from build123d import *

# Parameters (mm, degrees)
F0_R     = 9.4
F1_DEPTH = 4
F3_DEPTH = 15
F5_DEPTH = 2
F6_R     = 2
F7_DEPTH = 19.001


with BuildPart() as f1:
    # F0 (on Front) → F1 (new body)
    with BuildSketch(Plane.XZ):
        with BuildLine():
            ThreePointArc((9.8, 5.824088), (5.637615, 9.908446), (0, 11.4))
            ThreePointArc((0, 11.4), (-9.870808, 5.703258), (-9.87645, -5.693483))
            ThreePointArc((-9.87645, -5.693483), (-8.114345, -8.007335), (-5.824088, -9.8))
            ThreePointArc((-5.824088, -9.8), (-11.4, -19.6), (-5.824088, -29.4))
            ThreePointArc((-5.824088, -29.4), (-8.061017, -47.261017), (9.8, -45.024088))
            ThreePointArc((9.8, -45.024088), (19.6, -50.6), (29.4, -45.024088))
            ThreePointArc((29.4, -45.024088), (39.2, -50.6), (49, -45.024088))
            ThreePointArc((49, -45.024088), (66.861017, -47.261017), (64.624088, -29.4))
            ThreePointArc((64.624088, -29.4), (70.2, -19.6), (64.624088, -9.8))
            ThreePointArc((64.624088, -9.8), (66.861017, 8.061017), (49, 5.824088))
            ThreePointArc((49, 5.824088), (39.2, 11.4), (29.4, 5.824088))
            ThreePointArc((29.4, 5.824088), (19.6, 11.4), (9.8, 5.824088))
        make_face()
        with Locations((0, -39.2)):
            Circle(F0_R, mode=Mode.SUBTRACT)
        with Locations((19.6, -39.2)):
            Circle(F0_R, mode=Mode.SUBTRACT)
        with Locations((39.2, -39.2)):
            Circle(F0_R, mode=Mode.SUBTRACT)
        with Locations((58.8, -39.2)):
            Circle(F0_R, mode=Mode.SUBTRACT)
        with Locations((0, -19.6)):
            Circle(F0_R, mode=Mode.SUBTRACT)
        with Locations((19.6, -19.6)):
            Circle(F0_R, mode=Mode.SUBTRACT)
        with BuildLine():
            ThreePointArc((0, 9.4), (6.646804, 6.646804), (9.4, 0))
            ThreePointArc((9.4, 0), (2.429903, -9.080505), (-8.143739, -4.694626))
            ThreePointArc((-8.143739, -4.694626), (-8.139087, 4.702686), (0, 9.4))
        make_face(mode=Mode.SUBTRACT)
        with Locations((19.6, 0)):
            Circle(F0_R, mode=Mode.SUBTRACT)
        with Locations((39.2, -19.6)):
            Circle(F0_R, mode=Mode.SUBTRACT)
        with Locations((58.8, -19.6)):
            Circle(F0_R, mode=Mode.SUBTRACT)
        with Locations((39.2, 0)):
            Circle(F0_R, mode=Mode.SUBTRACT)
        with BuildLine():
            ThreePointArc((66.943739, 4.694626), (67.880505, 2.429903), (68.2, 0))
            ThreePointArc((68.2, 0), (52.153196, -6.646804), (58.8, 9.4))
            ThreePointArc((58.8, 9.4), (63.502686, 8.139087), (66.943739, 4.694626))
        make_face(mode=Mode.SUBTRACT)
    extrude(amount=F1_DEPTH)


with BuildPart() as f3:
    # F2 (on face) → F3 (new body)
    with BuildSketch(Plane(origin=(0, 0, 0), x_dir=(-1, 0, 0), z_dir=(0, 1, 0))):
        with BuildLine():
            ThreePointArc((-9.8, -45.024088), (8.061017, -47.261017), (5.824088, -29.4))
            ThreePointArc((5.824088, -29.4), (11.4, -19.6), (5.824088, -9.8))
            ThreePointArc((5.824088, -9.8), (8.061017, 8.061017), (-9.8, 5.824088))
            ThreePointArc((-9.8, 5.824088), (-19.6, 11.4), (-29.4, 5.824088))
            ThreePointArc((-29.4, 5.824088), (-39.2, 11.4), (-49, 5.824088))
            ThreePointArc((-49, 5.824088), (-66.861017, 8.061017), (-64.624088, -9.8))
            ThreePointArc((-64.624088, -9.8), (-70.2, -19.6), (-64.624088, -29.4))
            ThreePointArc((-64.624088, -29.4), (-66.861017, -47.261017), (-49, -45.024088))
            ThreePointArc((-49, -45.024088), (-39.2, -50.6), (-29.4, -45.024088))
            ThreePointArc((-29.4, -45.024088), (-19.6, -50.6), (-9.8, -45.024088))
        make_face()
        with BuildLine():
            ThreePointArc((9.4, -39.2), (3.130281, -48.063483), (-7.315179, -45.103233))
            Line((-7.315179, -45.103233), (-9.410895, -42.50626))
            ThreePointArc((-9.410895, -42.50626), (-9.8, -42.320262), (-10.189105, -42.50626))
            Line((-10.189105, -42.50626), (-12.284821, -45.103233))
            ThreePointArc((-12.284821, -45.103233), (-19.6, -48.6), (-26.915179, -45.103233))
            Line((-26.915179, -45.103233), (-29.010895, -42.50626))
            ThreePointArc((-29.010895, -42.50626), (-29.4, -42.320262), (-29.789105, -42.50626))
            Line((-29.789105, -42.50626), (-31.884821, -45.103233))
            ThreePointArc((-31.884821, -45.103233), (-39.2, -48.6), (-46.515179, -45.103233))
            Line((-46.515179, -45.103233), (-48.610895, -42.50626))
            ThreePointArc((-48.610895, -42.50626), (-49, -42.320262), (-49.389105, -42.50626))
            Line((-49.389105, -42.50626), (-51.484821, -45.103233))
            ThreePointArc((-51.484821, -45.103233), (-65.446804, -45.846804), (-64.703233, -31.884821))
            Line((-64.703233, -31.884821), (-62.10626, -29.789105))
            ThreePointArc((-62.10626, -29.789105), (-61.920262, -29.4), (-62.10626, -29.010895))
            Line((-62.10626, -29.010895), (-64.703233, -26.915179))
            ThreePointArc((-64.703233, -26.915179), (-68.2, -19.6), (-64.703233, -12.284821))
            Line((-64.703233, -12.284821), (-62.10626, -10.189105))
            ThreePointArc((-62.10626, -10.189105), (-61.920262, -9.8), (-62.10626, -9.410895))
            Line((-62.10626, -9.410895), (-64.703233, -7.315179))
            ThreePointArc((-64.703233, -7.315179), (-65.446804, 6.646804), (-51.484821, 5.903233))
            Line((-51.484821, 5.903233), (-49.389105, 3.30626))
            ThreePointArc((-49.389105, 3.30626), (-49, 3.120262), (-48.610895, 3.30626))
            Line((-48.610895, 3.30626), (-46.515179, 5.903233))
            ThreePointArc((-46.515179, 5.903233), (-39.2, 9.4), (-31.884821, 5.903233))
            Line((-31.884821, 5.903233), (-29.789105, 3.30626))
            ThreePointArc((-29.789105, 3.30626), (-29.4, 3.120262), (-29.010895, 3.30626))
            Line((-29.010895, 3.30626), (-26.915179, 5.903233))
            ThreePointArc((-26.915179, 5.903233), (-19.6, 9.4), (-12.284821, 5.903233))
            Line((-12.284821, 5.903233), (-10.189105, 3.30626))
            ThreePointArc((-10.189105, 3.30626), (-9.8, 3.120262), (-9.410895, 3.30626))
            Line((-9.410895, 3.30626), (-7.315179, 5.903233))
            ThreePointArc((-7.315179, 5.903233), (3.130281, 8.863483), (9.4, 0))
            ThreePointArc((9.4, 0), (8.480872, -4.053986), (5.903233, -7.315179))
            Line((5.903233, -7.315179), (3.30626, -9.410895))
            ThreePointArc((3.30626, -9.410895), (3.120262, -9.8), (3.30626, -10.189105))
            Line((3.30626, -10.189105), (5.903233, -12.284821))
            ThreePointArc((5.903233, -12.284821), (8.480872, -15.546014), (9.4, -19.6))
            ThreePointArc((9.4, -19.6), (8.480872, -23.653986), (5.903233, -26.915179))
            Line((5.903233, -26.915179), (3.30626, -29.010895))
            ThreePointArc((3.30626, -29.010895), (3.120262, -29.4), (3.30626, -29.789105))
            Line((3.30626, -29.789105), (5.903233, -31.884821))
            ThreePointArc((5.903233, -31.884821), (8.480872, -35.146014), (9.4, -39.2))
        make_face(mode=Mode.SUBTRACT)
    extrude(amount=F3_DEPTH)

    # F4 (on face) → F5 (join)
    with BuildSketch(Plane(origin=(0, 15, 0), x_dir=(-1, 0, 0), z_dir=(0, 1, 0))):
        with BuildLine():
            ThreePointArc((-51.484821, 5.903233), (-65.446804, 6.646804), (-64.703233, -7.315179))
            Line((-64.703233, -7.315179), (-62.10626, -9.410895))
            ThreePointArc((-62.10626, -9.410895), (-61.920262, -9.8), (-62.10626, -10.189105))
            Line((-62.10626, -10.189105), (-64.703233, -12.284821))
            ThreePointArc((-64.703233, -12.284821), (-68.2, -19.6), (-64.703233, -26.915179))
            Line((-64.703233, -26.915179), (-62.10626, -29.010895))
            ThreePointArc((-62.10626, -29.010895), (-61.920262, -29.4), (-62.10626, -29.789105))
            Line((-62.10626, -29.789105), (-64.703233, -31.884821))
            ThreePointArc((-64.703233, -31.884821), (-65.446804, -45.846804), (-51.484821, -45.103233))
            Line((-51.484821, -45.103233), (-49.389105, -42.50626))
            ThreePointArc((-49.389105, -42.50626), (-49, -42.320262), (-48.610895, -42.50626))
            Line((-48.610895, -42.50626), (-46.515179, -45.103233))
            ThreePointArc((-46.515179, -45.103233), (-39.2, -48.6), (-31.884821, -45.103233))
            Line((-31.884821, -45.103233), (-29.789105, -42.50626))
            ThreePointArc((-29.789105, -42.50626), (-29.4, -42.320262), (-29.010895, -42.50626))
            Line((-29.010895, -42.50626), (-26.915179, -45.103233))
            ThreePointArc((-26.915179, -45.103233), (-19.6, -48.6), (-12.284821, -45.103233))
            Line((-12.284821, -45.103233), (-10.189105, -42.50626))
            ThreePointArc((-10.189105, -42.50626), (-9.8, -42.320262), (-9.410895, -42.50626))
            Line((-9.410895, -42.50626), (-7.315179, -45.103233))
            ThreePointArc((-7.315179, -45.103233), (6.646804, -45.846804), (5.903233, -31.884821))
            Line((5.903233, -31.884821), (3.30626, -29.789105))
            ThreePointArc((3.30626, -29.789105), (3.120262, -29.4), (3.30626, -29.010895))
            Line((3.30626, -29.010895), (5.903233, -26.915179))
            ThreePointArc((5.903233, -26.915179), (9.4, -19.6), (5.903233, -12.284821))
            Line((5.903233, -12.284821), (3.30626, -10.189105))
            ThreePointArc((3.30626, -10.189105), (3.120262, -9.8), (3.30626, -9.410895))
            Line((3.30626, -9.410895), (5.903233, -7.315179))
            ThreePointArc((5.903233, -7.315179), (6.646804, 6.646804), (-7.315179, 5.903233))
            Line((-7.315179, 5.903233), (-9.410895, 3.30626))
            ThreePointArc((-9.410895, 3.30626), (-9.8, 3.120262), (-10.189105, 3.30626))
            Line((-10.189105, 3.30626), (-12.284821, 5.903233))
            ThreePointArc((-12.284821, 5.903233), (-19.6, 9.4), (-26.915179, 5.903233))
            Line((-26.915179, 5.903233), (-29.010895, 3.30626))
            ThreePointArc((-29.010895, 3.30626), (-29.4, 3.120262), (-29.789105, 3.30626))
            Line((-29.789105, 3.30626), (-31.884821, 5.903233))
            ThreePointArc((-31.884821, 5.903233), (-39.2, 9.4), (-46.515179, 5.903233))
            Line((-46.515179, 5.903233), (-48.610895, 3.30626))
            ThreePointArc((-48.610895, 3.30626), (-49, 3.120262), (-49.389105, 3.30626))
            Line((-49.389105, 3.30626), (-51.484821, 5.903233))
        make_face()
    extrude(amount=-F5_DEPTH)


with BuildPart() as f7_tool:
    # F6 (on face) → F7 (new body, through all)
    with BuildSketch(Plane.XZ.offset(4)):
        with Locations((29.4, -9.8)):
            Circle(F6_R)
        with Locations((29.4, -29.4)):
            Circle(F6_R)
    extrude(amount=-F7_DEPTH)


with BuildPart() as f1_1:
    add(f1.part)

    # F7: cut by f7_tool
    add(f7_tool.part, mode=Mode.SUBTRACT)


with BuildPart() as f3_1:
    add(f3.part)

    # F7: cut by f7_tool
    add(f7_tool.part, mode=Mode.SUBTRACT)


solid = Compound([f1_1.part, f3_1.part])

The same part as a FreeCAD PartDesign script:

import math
import FreeCAD as App
import Part
import Sketcher

doc = App.newDocument("Part")
body = doc.addObject("PartDesign::Body", "Body")

# Sketch on XZ plane
sketch1 = body.newObject("Sketcher::SketchObject", "Sketch")
sketch1.AttachmentSupport = (doc.getObject("XZ_Plane"), [""])
sketch1.MapMode = "FlatFace"
sketch1.addGeometry([
    Part.ArcOfCircle(Part.Circle(App.Vector(0.000001, 0.000001, 0), App.Vector(0, 0, 1), 11.399999), math.radians(30.722788), math.radians(90.000004)),  # 0
    Part.ArcOfCircle(Part.Circle(App.Vector(0, 0, 0), App.Vector(0, 0, 1), 11.4), math.radians(90.000001), math.radians(209.962182)),  # 1
    Part.ArcOfCircle(Part.Circle(App.Vector(-0.000002, -0.000001, 0), App.Vector(0, 0, 1), 11.399998), math.radians(-150.037813), math.radians(-120.722784)),  # 2
    Part.ArcOfCircle(Part.Circle(App.Vector(0, -19.6, 0), App.Vector(0, 0, 1), 11.4), math.radians(120.722792), math.radians(239.277208)),  # 3
    Part.ArcOfCircle(Part.Circle(App.Vector(0, -39.2, 0), App.Vector(0, 0, 1), 11.4), math.radians(120.722793), math.radians(329.277207)),  # 4
    Part.ArcOfCircle(Part.Circle(App.Vector(19.6, -39.2, 0), App.Vector(0, 0, 1), 11.4), math.radians(-149.277208), math.radians(-30.722792)),  # 5
    Part.ArcOfCircle(Part.Circle(App.Vector(39.2, -39.2, 0), App.Vector(0, 0, 1), 11.4), math.radians(-149.277208), math.radians(-30.722792)),  # 6
    Part.ArcOfCircle(Part.Circle(App.Vector(58.8, -39.2, 0), App.Vector(0, 0, 1), 11.4), math.radians(-149.277207), math.radians(59.277207)),  # 7
    Part.ArcOfCircle(Part.Circle(App.Vector(58.8, -19.6, 0), App.Vector(0, 0, 1), 11.4), math.radians(-59.277208), math.radians(59.277208)),  # 8
    Part.ArcOfCircle(Part.Circle(App.Vector(58.8, 0, 0), App.Vector(0, 0, 1), 11.4), math.radians(-59.277207), math.radians(149.277207)),  # 9
    Part.ArcOfCircle(Part.Circle(App.Vector(39.2, 0, 0), App.Vector(0, 0, 1), 11.4), math.radians(30.722792), math.radians(149.277208)),  # 10
    Part.ArcOfCircle(Part.Circle(App.Vector(19.6, 0, 0), App.Vector(0, 0, 1), 11.4), math.radians(30.722792), math.radians(149.277208)),  # 11
    Part.Circle(App.Vector(0, -39.2, 0), App.Vector(0, 0, 1), 9.4),  # 12
    Part.Circle(App.Vector(19.6, -39.2, 0), App.Vector(0, 0, 1), 9.4),  # 13
    Part.Circle(App.Vector(0, -19.6, 0), App.Vector(0, 0, 1), 9.4),  # 14
    Part.Circle(App.Vector(19.6, -19.6, 0), App.Vector(0, 0, 1), 9.4),  # 15
    Part.Circle(App.Vector(39.2, -39.2, 0), App.Vector(0, 0, 1), 9.4),  # 16
    Part.Circle(App.Vector(58.8, -39.2, 0), App.Vector(0, 0, 1), 9.4),  # 17
    Part.Circle(App.Vector(39.2, -19.6, 0), App.Vector(0, 0, 1), 9.4),  # 18
    Part.Circle(App.Vector(58.8, -19.6, 0), App.Vector(0, 0, 1), 9.4),  # 19
    Part.ArcOfCircle(Part.Circle(App.Vector(0.000001, 0, 0), App.Vector(0, 0, 1), 9.4), math.radians(90.000004), math.radians(209.962181)),  # 20
    Part.ArcOfCircle(Part.Circle(App.Vector(0.000001, 0.000001, 0), App.Vector(0, 0, 1), 9.399999), math.radians(-0.000005), math.radians(90.000005)),  # 21
    Part.ArcOfCircle(Part.Circle(App.Vector(0, 0, 0), App.Vector(0, 0, 1), 9.4), math.radians(-150.037816), math.radians(0)),  # 22
    Part.Circle(App.Vector(19.6, 0, 0), App.Vector(0, 0, 1), 9.4),  # 23
    Part.Circle(App.Vector(39.2, 0, 0), App.Vector(0, 0, 1), 9.4),  # 24
    Part.ArcOfCircle(Part.Circle(App.Vector(58.799999, -0.000002, 0), App.Vector(0, 0, 1), 9.400002), math.radians(29.962191), math.radians(89.999992)),  # 25
    Part.ArcOfCircle(Part.Circle(App.Vector(58.800001, 0, 0), App.Vector(0, 0, 1), 9.399999), math.radians(0), math.radians(29.962187)),  # 26
    Part.ArcOfCircle(Part.Circle(App.Vector(58.8, 0, 0), App.Vector(0, 0, 1), 9.4), math.radians(89.999999), math.radians(360.000001)),  # 27
], False)
sketch1.addConstraint([
    Sketcher.Constraint("Tangent", 0, 2, 1, 1),
    Sketcher.Constraint("Tangent", 1, 2, 2, 1),
    Sketcher.Constraint("Coincident", 2, 2, 3, 1),
    Sketcher.Constraint("Coincident", 3, 2, 4, 1),
    Sketcher.Constraint("Coincident", 4, 2, 5, 1),
    Sketcher.Constraint("Coincident", 5, 2, 6, 1),
    Sketcher.Constraint("Coincident", 6, 2, 7, 1),
    Sketcher.Constraint("Coincident", 7, 2, 8, 1),
    Sketcher.Constraint("Coincident", 8, 2, 9, 1),
    Sketcher.Constraint("Coincident", 9, 2, 10, 1),
    Sketcher.Constraint("Coincident", 10, 2, 11, 1),
    Sketcher.Constraint("Coincident", 11, 2, 0, 1),
    Sketcher.Constraint("Tangent", 20, 1, 21, 2),
    Sketcher.Constraint("Tangent", 21, 1, 22, 2),
    Sketcher.Constraint("Tangent", 22, 1, 20, 2),
    Sketcher.Constraint("Tangent", 25, 1, 26, 2),
    Sketcher.Constraint("Tangent", 26, 1, 27, 2),
    Sketcher.Constraint("Tangent", 27, 1, 25, 2),
    Sketcher.Constraint("Coincident", 0, 3, -1, 1),
    Sketcher.Constraint("Coincident", 2, 3, -1, 1),
    Sketcher.Constraint("Coincident", 20, 3, -1, 1),
    Sketcher.Constraint("Coincident", 12, 3, 4, 3),
    Sketcher.Constraint("Coincident", 13, 3, 5, 3),
    Sketcher.Constraint("Coincident", 14, 3, 3, 3),
    Sketcher.Constraint("Coincident", 16, 3, 6, 3),
    Sketcher.Constraint("Coincident", 17, 3, 7, 3),
    Sketcher.Constraint("Coincident", 19, 3, 8, 3),
    Sketcher.Constraint("Coincident", 23, 3, 11, 3),
    Sketcher.Constraint("Coincident", 24, 3, 10, 3),
    Sketcher.Constraint("Coincident", 25, 3, 9, 3),
    Sketcher.Constraint("Equal", 2, 3),
    Sketcher.Constraint("Equal", 3, 4),
    Sketcher.Constraint("Equal", 4, 5),
    Sketcher.Constraint("Equal", 5, 6),
    Sketcher.Constraint("Equal", 6, 7),
    Sketcher.Constraint("Equal", 7, 8),
    Sketcher.Constraint("Equal", 8, 9),
    Sketcher.Constraint("Equal", 9, 10),
    Sketcher.Constraint("Equal", 10, 11),
    Sketcher.Constraint("Equal", 12, 13),
    Sketcher.Constraint("Equal", 13, 14),
    Sketcher.Constraint("Equal", 14, 15),
    Sketcher.Constraint("Equal", 15, 16),
    Sketcher.Constraint("Equal", 16, 17),
    Sketcher.Constraint("Equal", 17, 18),
    Sketcher.Constraint("Equal", 18, 19),
    Sketcher.Constraint("Equal", 19, 20),
    Sketcher.Constraint("Equal", 22, 23),
    Sketcher.Constraint("Equal", 23, 24),
    Sketcher.Constraint("Equal", 20, 25),
    Sketcher.Constraint("PointOnObject", 3, 3, -2),
    Sketcher.Constraint("PointOnObject", 4, 3, -2),
    Sketcher.Constraint("PointOnObject", 9, 3, -1),
    Sketcher.Constraint("PointOnObject", 10, 3, -1),
    Sketcher.Constraint("PointOnObject", 11, 3, -1),
    Sketcher.Constraint("PointOnObject", 0, 2, -2),
    Sketcher.Constraint("PointOnObject", 20, 1, -2),
    Sketcher.Constraint("PointOnObject", 21, 1, -1),
    Sketcher.Constraint("PointOnObject", 26, 1, -1),
    Sketcher.Constraint("Horizontal", 4, 3, 5, 3),
    Sketcher.Constraint("Horizontal", 5, 3, 6, 3),
    Sketcher.Constraint("Horizontal", 6, 3, 7, 3),
    Sketcher.Constraint("Horizontal", 3, 3, 8, 3),
    Sketcher.Constraint("Horizontal", 14, 3, 15, 3),
    Sketcher.Constraint("Horizontal", 15, 3, 18, 3),
    Sketcher.Constraint("Horizontal", 4, 2, 5, 2),
    Sketcher.Constraint("Horizontal", 5, 2, 6, 2),
    Sketcher.Constraint("Horizontal", 3, 2, 7, 2),
    Sketcher.Constraint("Horizontal", 2, 2, 8, 2),
    Sketcher.Constraint("Horizontal", 9, 2, 10, 2),
    Sketcher.Constraint("Horizontal", 10, 2, 11, 2),
    Sketcher.Constraint("Vertical", 13, 3, 15, 3),
    Sketcher.Constraint("Vertical", 16, 3, 18, 3),
    Sketcher.Constraint("Vertical", 2, 2, 3, 2),
    Sketcher.Constraint("Vertical", 26, 3, 27, 1),
    Sketcher.Constraint("Diameter", 12, 18.8),
    Sketcher.Constraint("Radius", 0, 11.399999),
    Sketcher.Constraint("DistanceX", -1, 1, 6, 2, 49.0),
    Sketcher.Constraint("DistanceY", 3, 3, -1, 1, 19.6),
    Sketcher.Constraint("DistanceX", 1, 2, -1, 1, 9.87645),
    Sketcher.Constraint("DistanceX", 22, 1, -1, 1, 8.143739),
    Sketcher.Constraint("DistanceX", -1, 1, 25, 1, 66.943739),
])
pad1 = body.newObject("PartDesign::Pad", "Pad")
pad1.Profile = sketch1
pad1.Length = 4
body2 = doc.addObject("PartDesign::Body", "Body001")

# Sketch on XZ plane
sketch2 = body2.newObject("Sketcher::SketchObject", "Sketch001")
sketch2.AttachmentSupport = (doc.getObject("XZ_Plane001"), [""])
sketch2.MapMode = "FlatFace"
sketch2.addGeometry([
    Part.ArcOfCircle(Part.Circle(App.Vector(0, -39.2, 0), App.Vector(0, 0, 1), 11.4), math.radians(120.722793), math.radians(329.277207)),  # 0
    Part.ArcOfCircle(Part.Circle(App.Vector(0, -19.6, 0), App.Vector(0, 0, 1), 11.4), math.radians(120.722792), math.radians(239.277208)),  # 1
    Part.ArcOfCircle(Part.Circle(App.Vector(0, 0, 0), App.Vector(0, 0, 1), 11.4), math.radians(30.722793), math.radians(239.277207)),  # 2
    Part.ArcOfCircle(Part.Circle(App.Vector(19.6, 0, 0), App.Vector(0, 0, 1), 11.4), math.radians(30.722792), math.radians(149.277208)),  # 3
    Part.ArcOfCircle(Part.Circle(App.Vector(39.2, 0, 0), App.Vector(0, 0, 1), 11.4), math.radians(30.722792), math.radians(149.277208)),  # 4
    Part.ArcOfCircle(Part.Circle(App.Vector(58.8, 0, 0), App.Vector(0, 0, 1), 11.4), math.radians(-59.277207), math.radians(149.277207)),  # 5
    Part.ArcOfCircle(Part.Circle(App.Vector(58.8, -19.6, 0), App.Vector(0, 0, 1), 11.4), math.radians(-59.277208), math.radians(59.277208)),  # 6
    Part.ArcOfCircle(Part.Circle(App.Vector(58.8, -39.2, 0), App.Vector(0, 0, 1), 11.4), math.radians(-149.277207), math.radians(59.277207)),  # 7
    Part.ArcOfCircle(Part.Circle(App.Vector(39.2, -39.2, 0), App.Vector(0, 0, 1), 11.4), math.radians(-149.277208), math.radians(-30.722792)),  # 8
    Part.ArcOfCircle(Part.Circle(App.Vector(19.6, -39.2, 0), App.Vector(0, 0, 1), 11.4), math.radians(-149.277208), math.radians(-30.722792)),  # 9
    Part.ArcOfCircle(Part.Circle(App.Vector(0.000005, -39.200002, 0), App.Vector(0, 0, 1), 9.400005), math.radians(128.902992), math.radians(179.999988)),  # 10
    Part.ArcOfCircle(Part.Circle(App.Vector(0, -39.199999, 0), App.Vector(0, 0, 1), 9.4), math.radians(-179.999995), math.radians(-38.902983)),  # 11
    Part.LineSegment(App.Vector(7.315179, -45.103233, 0), App.Vector(9.410895, -42.50626, 0)),  # 12
    Part.ArcOfCircle(Part.Circle(App.Vector(9.8, -42.820262, 0), App.Vector(0, 0, 1), 0.5), math.radians(38.903008), math.radians(141.096992)),  # 13
    Part.LineSegment(App.Vector(10.189105, -42.50626, 0), App.Vector(12.284821, -45.103233, 0)),  # 14
    Part.ArcOfCircle(Part.Circle(App.Vector(19.6, -39.199999, 0), App.Vector(0, 0, 1), 9.400001), math.radians(-141.09702), math.radians(-38.90298)),  # 15
    Part.LineSegment(App.Vector(26.915179, -45.103233, 0), App.Vector(29.010895, -42.50626, 0)),  # 16
    Part.ArcOfCircle(Part.Circle(App.Vector(29.4, -42.820262, 0), App.Vector(0, 0, 1), 0.5), math.radians(38.903008), math.radians(141.096992)),  # 17
    Part.LineSegment(App.Vector(29.789105, -42.50626, 0), App.Vector(31.884821, -45.103233, 0)),  # 18
    Part.ArcOfCircle(Part.Circle(App.Vector(39.2, -39.199999, 0), App.Vector(0, 0, 1), 9.400001), math.radians(-141.09702), math.radians(-38.90298)),  # 19
    Part.LineSegment(App.Vector(46.515179, -45.103233, 0), App.Vector(48.610895, -42.50626, 0)),  # 20
    Part.ArcOfCircle(Part.Circle(App.Vector(49, -42.820262, 0), App.Vector(0, 0, 1), 0.5), math.radians(38.903008), math.radians(141.096992)),  # 21
    Part.LineSegment(App.Vector(49.389105, -42.50626, 0), App.Vector(51.484821, -45.103233, 0)),  # 22
    Part.ArcOfCircle(Part.Circle(App.Vector(58.8, -39.2, 0), App.Vector(0, 0, 1), 9.4), math.radians(-141.097024), math.radians(51.097024)),  # 23
    Part.LineSegment(App.Vector(64.703233, -31.884821, 0), App.Vector(62.10626, -29.789105, 0)),  # 24
    Part.ArcOfCircle(Part.Circle(App.Vector(62.420262, -29.4, 0), App.Vector(0, 0, 1), 0.5), math.radians(128.903008), math.radians(231.096992)),  # 25
    Part.LineSegment(App.Vector(62.10626, -29.010895, 0), App.Vector(64.703233, -26.915179, 0)),  # 26
    Part.ArcOfCircle(Part.Circle(App.Vector(58.799999, -19.6, 0), App.Vector(0, 0, 1), 9.400001), math.radians(-51.09702), math.radians(51.09702)),  # 27
    Part.LineSegment(App.Vector(64.703233, -12.284821, 0), App.Vector(62.10626, -10.189105, 0)),  # 28
    Part.ArcOfCircle(Part.Circle(App.Vector(62.420262, -9.8, 0), App.Vector(0, 0, 1), 0.5), math.radians(128.903008), math.radians(231.096992)),  # 29
    Part.LineSegment(App.Vector(62.10626, -9.410895, 0), App.Vector(64.703233, -7.315179, 0)),  # 30
    Part.ArcOfCircle(Part.Circle(App.Vector(58.8, 0, 0), App.Vector(0, 0, 1), 9.4), math.radians(-51.097024), math.radians(141.097024)),  # 31
    Part.LineSegment(App.Vector(51.484821, 5.903233, 0), App.Vector(49.389105, 3.30626, 0)),  # 32
    Part.ArcOfCircle(Part.Circle(App.Vector(49, 3.620262, 0), App.Vector(0, 0, 1), 0.5), math.radians(-141.096992), math.radians(-38.903008)),  # 33
    Part.LineSegment(App.Vector(48.610895, 3.30626, 0), App.Vector(46.515179, 5.903233, 0)),  # 34
    Part.ArcOfCircle(Part.Circle(App.Vector(39.2, -0.000001, 0), App.Vector(0, 0, 1), 9.400001), math.radians(38.90298), math.radians(141.09702)),  # 35
    Part.LineSegment(App.Vector(31.884821, 5.903233, 0), App.Vector(29.789105, 3.30626, 0)),  # 36
    Part.ArcOfCircle(Part.Circle(App.Vector(29.4, 3.620262, 0), App.Vector(0, 0, 1), 0.5), math.radians(-141.096992), math.radians(-38.903008)),  # 37
    Part.LineSegment(App.Vector(29.010895, 3.30626, 0), App.Vector(26.915179, 5.903233, 0)),  # 38
    Part.ArcOfCircle(Part.Circle(App.Vector(19.6, -0.000001, 0), App.Vector(0, 0, 1), 9.400001), math.radians(38.90298), math.radians(141.09702)),  # 39
    Part.LineSegment(App.Vector(12.284821, 5.903233, 0), App.Vector(10.189105, 3.30626, 0)),  # 40
    Part.ArcOfCircle(Part.Circle(App.Vector(9.8, 3.620262, 0), App.Vector(0, 0, 1), 0.5), math.radians(-141.096992), math.radians(-38.903008)),  # 41
    Part.LineSegment(App.Vector(9.410895, 3.30626, 0), App.Vector(7.315179, 5.903233, 0)),  # 42
    Part.ArcOfCircle(Part.Circle(App.Vector(0, -0.000001, 0), App.Vector(0, 0, 1), 9.4), math.radians(38.902983), math.radians(179.999995)),  # 43
    Part.ArcOfCircle(Part.Circle(App.Vector(0.000005, 0.000002, 0), App.Vector(0, 0, 1), 9.400005), math.radians(-179.999988), math.radians(-128.902992)),  # 44
    Part.LineSegment(App.Vector(-5.903233, -7.315179, 0), App.Vector(-3.30626, -9.410895, 0)),  # 45
    Part.ArcOfCircle(Part.Circle(App.Vector(-3.620262, -9.8, 0), App.Vector(0, 0, 1), 0.5), math.radians(-51.096992), math.radians(51.096992)),  # 46
    Part.LineSegment(App.Vector(-3.30626, -10.189105, 0), App.Vector(-5.903233, -12.284821, 0)),  # 47
    Part.ArcOfCircle(Part.Circle(App.Vector(0.000005, -19.600002, 0), App.Vector(0, 0, 1), 9.400005), math.radians(128.902992), math.radians(179.999988)),  # 48
    Part.ArcOfCircle(Part.Circle(App.Vector(0.000005, -19.599998, 0), App.Vector(0, 0, 1), 9.400005), math.radians(-179.999988), math.radians(-128.902992)),  # 49
    Part.LineSegment(App.Vector(-5.903233, -26.915179, 0), App.Vector(-3.30626, -29.010895, 0)),  # 50
    Part.ArcOfCircle(Part.Circle(App.Vector(-3.620262, -29.4, 0), App.Vector(0, 0, 1), 0.5), math.radians(-51.096992), math.radians(51.096992)),  # 51
    Part.LineSegment(App.Vector(-3.30626, -29.789105, 0), App.Vector(-5.903233, -31.884821, 0)),  # 52
], False)
sketch2.addConstraint([
    Sketcher.Constraint("Coincident", 0, 1, 1, 2),
    Sketcher.Constraint("Coincident", 1, 1, 2, 2),
    Sketcher.Constraint("Coincident", 2, 1, 3, 2),
    Sketcher.Constraint("Coincident", 3, 1, 4, 2),
    Sketcher.Constraint("Coincident", 4, 1, 5, 2),
    Sketcher.Constraint("Coincident", 5, 1, 6, 2),
    Sketcher.Constraint("Coincident", 6, 1, 7, 2),
    Sketcher.Constraint("Coincident", 7, 1, 8, 2),
    Sketcher.Constraint("Coincident", 8, 1, 9, 2),
    Sketcher.Constraint("Coincident", 9, 1, 0, 2),
    Sketcher.Constraint("Tangent", 10, 2, 11, 1),
    Sketcher.Constraint("Tangent", 11, 2, 12, 1),
    Sketcher.Constraint("Tangent", 12, 2, 13, 2),
    Sketcher.Constraint("Tangent", 13, 1, 14, 1),
    Sketcher.Constraint("Tangent", 14, 2, 15, 1),
    Sketcher.Constraint("Tangent", 15, 2, 16, 1),
    Sketcher.Constraint("Tangent", 16, 2, 17, 2),
    Sketcher.Constraint("Tangent", 17, 1, 18, 1),
    Sketcher.Constraint("Tangent", 18, 2, 19, 1),
    Sketcher.Constraint("Tangent", 19, 2, 20, 1),
    Sketcher.Constraint("Tangent", 20, 2, 21, 2),
    Sketcher.Constraint("Tangent", 21, 1, 22, 1),
    Sketcher.Constraint("Tangent", 22, 2, 23, 1),
    Sketcher.Constraint("Tangent", 23, 2, 24, 1),
    Sketcher.Constraint("Tangent", 24, 2, 25, 2),
    Sketcher.Constraint("Tangent", 25, 1, 26, 1),
    Sketcher.Constraint("Tangent", 26, 2, 27, 1),
    Sketcher.Constraint("Tangent", 27, 2, 28, 1),
    Sketcher.Constraint("Tangent", 28, 2, 29, 2),
    Sketcher.Constraint("Tangent", 29, 1, 30, 1),
    Sketcher.Constraint("Tangent", 30, 2, 31, 1),
    Sketcher.Constraint("Tangent", 31, 2, 32, 1),
    Sketcher.Constraint("Tangent", 32, 2, 33, 2),
    Sketcher.Constraint("Tangent", 33, 1, 34, 1),
    Sketcher.Constraint("Tangent", 34, 2, 35, 1),
    Sketcher.Constraint("Tangent", 35, 2, 36, 1),
    Sketcher.Constraint("Tangent", 36, 2, 37, 2),
    Sketcher.Constraint("Tangent", 37, 1, 38, 1),
    Sketcher.Constraint("Tangent", 38, 2, 39, 1),
    Sketcher.Constraint("Tangent", 39, 2, 40, 1),
    Sketcher.Constraint("Tangent", 40, 2, 41, 2),
    Sketcher.Constraint("Tangent", 41, 1, 42, 1),
    Sketcher.Constraint("Tangent", 42, 2, 43, 1),
    Sketcher.Constraint("Tangent", 43, 2, 44, 1),
    Sketcher.Constraint("Tangent", 44, 2, 45, 1),
    Sketcher.Constraint("Tangent", 45, 2, 46, 2),
    Sketcher.Constraint("Tangent", 46, 1, 47, 1),
    Sketcher.Constraint("Tangent", 47, 2, 48, 1),
    Sketcher.Constraint("Tangent", 48, 2, 49, 1),
    Sketcher.Constraint("Tangent", 49, 2, 50, 1),
    Sketcher.Constraint("Tangent", 50, 2, 51, 2),
    Sketcher.Constraint("Tangent", 51, 1, 52, 1),
    Sketcher.Constraint("Tangent", 52, 2, 10, 1),
    Sketcher.Constraint("Coincident", 2, 3, -1, 1),
    Sketcher.Constraint("Coincident", 43, 3, -1, 1),
    Sketcher.Constraint("Coincident", 10, 3, 0, 3),
    Sketcher.Constraint("Coincident", 15, 3, 9, 3),
    Sketcher.Constraint("Coincident", 19, 3, 8, 3),
    Sketcher.Constraint("Coincident", 23, 3, 7, 3),
    Sketcher.Constraint("Coincident", 27, 3, 6, 3),
    Sketcher.Constraint("Coincident", 31, 3, 5, 3),
    Sketcher.Constraint("Coincident", 35, 3, 4, 3),
    Sketcher.Constraint("Coincident", 39, 3, 3, 3),
    Sketcher.Constraint("Coincident", 48, 3, 1, 3),
    Sketcher.Constraint("Equal", 0, 1),
    Sketcher.Constraint("Equal", 1, 2),
    Sketcher.Constraint("Equal", 2, 3),
    Sketcher.Constraint("Equal", 3, 4),
    Sketcher.Constraint("Equal", 4, 5),
    Sketcher.Constraint("Equal", 5, 6),
    Sketcher.Constraint("Equal", 6, 7),
    Sketcher.Constraint("Equal", 7, 8),
    Sketcher.Constraint("Equal", 8, 9),
    Sketcher.Constraint("Equal", 11, 15),
    Sketcher.Constraint("Equal", 13, 17),
    Sketcher.Constraint("Equal", 15, 19),
    Sketcher.Constraint("Equal", 17, 21),
    Sketcher.Constraint("Equal", 19, 23),
    Sketcher.Constraint("Equal", 21, 25),
    Sketcher.Constraint("Equal", 23, 27),
    Sketcher.Constraint("Equal", 25, 29),
    Sketcher.Constraint("Equal", 27, 31),
    Sketcher.Constraint("Equal", 29, 33),
    Sketcher.Constraint("Equal", 31, 35),
    Sketcher.Constraint("Equal", 33, 37),
    Sketcher.Constraint("Equal", 35, 39),
    Sketcher.Constraint("Equal", 37, 41),
    Sketcher.Constraint("Equal", 39, 43),
    Sketcher.Constraint("Equal", 10, 44),
    Sketcher.Constraint("Equal", 41, 46),
    Sketcher.Constraint("Equal", 44, 48),
    Sketcher.Constraint("Equal", 48, 49),
    Sketcher.Constraint("Equal", 46, 51),
    Sketcher.Constraint("PointOnObject", 0, 3, -2),
    Sketcher.Constraint("PointOnObject", 1, 3, -2),
    Sketcher.Constraint("PointOnObject", 3, 3, -1),
    Sketcher.Constraint("PointOnObject", 4, 3, -1),
    Sketcher.Constraint("PointOnObject", 5, 3, -1),
    Sketcher.Constraint("PointOnObject", 11, 3, -2),
    Sketcher.Constraint("PointOnObject", 43, 2, -1),
    Sketcher.Constraint("Parallel", 12, 16),
    Sketcher.Constraint("Parallel", 14, 18),
    Sketcher.Constraint("Parallel", 16, 20),
    Sketcher.Constraint("Parallel", 18, 22),
    Sketcher.Constraint("Perpendicular", 20, 24),
    Sketcher.Constraint("Perpendicular", 22, 26),
    Sketcher.Constraint("Parallel", 24, 28),
    Sketcher.Constraint("Parallel", 26, 30),
    Sketcher.Constraint("Perpendicular", 28, 32),
    Sketcher.Constraint("Perpendicular", 30, 34),
    Sketcher.Constraint("Parallel", 32, 36),
    Sketcher.Constraint("Parallel", 34, 38),
    Sketcher.Constraint("Parallel", 36, 40),
    Sketcher.Constraint("Parallel", 38, 42),
    Sketcher.Constraint("Perpendicular", 40, 45),
    Sketcher.Constraint("Perpendicular", 42, 47),
    Sketcher.Constraint("Parallel", 45, 50),
    Sketcher.Constraint("Parallel", 47, 52),
    Sketcher.Constraint("Horizontal", 1, 3, 6, 3),
    Sketcher.Constraint("Horizontal", 0, 3, 7, 3),
    Sketcher.Constraint("Horizontal", 7, 3, 8, 3),
    Sketcher.Constraint("Horizontal", 8, 3, 9, 3),
    Sketcher.Constraint("Horizontal", 13, 3, 17, 3),
    Sketcher.Constraint("Horizontal", 17, 3, 21, 3),
    Sketcher.Constraint("Horizontal", 33, 3, 37, 3),
    Sketcher.Constraint("Horizontal", 37, 3, 41, 3),
    Sketcher.Constraint("Horizontal", 29, 3, 46, 3),
    Sketcher.Constraint("Horizontal", 25, 3, 51, 3),
    Sketcher.Constraint("Horizontal", 51, 3, 0, 1),
    Sketcher.Constraint("Horizontal", 23, 3, 10, 2),
    Sketcher.Constraint("Horizontal", 27, 3, 48, 2),
    Sketcher.Constraint("Vertical", 25, 3, 29, 3),
    Sketcher.Constraint("Equal", 22, 24),
    Sketcher.Constraint("Radius", 0, 11.4),
    Sketcher.Constraint("Radius", 11, 9.4),
    Sketcher.Constraint("Radius", 13, 0.5),
    Sketcher.Constraint("DistanceX", -1, 1, 21, 3, 49.0),
    Sketcher.Constraint("Distance", 12, 3.337109),
])
pad2 = body2.newObject("PartDesign::Pad", "Pad001")
pad2.Profile = sketch2
pad2.Length = 15
pad2.Reversed = True

# Sketch on XZ plane
sketch3 = body2.newObject("Sketcher::SketchObject", "Sketch002")
sketch3.AttachmentSupport = (doc.getObject("XZ_Plane001"), [""])
sketch3.MapMode = "FlatFace"
sketch3.AttachmentOffset = App.Placement(App.Vector(0, 0, -15), App.Rotation())
sketch3.addGeometry([
    Part.ArcOfCircle(Part.Circle(App.Vector(58.8, 0, 0), App.Vector(0, 0, 1), 9.4), math.radians(-51.097024), math.radians(141.097024)),  # 0
    Part.LineSegment(App.Vector(64.703233, -7.315179, 0), App.Vector(62.10626, -9.410895, 0)),  # 1
    Part.ArcOfCircle(Part.Circle(App.Vector(62.420262, -9.8, 0), App.Vector(0, 0, 1), 0.5), math.radians(128.903008), math.radians(231.096992)),  # 2
    Part.LineSegment(App.Vector(62.10626, -10.189105, 0), App.Vector(64.703233, -12.284821, 0)),  # 3
    Part.ArcOfCircle(Part.Circle(App.Vector(58.799999, -19.6, 0), App.Vector(0, 0, 1), 9.400001), math.radians(-51.09702), math.radians(51.09702)),  # 4
    Part.LineSegment(App.Vector(64.703233, -26.915179, 0), App.Vector(62.10626, -29.010895, 0)),  # 5
    Part.ArcOfCircle(Part.Circle(App.Vector(62.420262, -29.4, 0), App.Vector(0, 0, 1), 0.5), math.radians(128.903008), math.radians(231.096992)),  # 6
    Part.LineSegment(App.Vector(62.10626, -29.789105, 0), App.Vector(64.703233, -31.884821, 0)),  # 7
    Part.ArcOfCircle(Part.Circle(App.Vector(58.8, -39.2, 0), App.Vector(0, 0, 1), 9.4), math.radians(-141.097024), math.radians(51.097024)),  # 8
    Part.LineSegment(App.Vector(51.484821, -45.103233, 0), App.Vector(49.389105, -42.50626, 0)),  # 9
    Part.ArcOfCircle(Part.Circle(App.Vector(49, -42.820262, 0), App.Vector(0, 0, 1), 0.5), math.radians(38.903008), math.radians(141.096992)),  # 10
    Part.LineSegment(App.Vector(48.610895, -42.50626, 0), App.Vector(46.515179, -45.103233, 0)),  # 11
    Part.ArcOfCircle(Part.Circle(App.Vector(39.2, -39.199999, 0), App.Vector(0, 0, 1), 9.400001), math.radians(-141.09702), math.radians(-38.90298)),  # 12
    Part.LineSegment(App.Vector(31.884821, -45.103233, 0), App.Vector(29.789105, -42.50626, 0)),  # 13
    Part.ArcOfCircle(Part.Circle(App.Vector(29.4, -42.820262, 0), App.Vector(0, 0, 1), 0.5), math.radians(38.903008), math.radians(141.096992)),  # 14
    Part.LineSegment(App.Vector(29.010895, -42.50626, 0), App.Vector(26.915179, -45.103233, 0)),  # 15
    Part.ArcOfCircle(Part.Circle(App.Vector(19.6, -39.199999, 0), App.Vector(0, 0, 1), 9.400001), math.radians(-141.09702), math.radians(-38.90298)),  # 16
    Part.LineSegment(App.Vector(12.284821, -45.103233, 0), App.Vector(10.189105, -42.50626, 0)),  # 17
    Part.ArcOfCircle(Part.Circle(App.Vector(9.8, -42.820262, 0), App.Vector(0, 0, 1), 0.5), math.radians(38.903008), math.radians(141.096992)),  # 18
    Part.LineSegment(App.Vector(9.410895, -42.50626, 0), App.Vector(7.315179, -45.103233, 0)),  # 19
    Part.ArcOfCircle(Part.Circle(App.Vector(0, -39.2, 0), App.Vector(0, 0, 1), 9.4), math.radians(128.902976), math.radians(321.097024)),  # 20
    Part.LineSegment(App.Vector(-5.903233, -31.884821, 0), App.Vector(-3.30626, -29.789105, 0)),  # 21
    Part.ArcOfCircle(Part.Circle(App.Vector(-3.620262, -29.4, 0), App.Vector(0, 0, 1), 0.5), math.radians(-51.096992), math.radians(51.096992)),  # 22
    Part.LineSegment(App.Vector(-3.30626, -29.010895, 0), App.Vector(-5.903233, -26.915179, 0)),  # 23
    Part.ArcOfCircle(Part.Circle(App.Vector(0.000001, -19.6, 0), App.Vector(0, 0, 1), 9.400001), math.radians(128.90298), math.radians(231.09702)),  # 24
    Part.LineSegment(App.Vector(-5.903233, -12.284821, 0), App.Vector(-3.30626, -10.189105, 0)),  # 25
    Part.ArcOfCircle(Part.Circle(App.Vector(-3.620262, -9.8, 0), App.Vector(0, 0, 1), 0.5), math.radians(-51.096992), math.radians(51.096992)),  # 26
    Part.LineSegment(App.Vector(-3.30626, -9.410895, 0), App.Vector(-5.903233, -7.315179, 0)),  # 27
    Part.ArcOfCircle(Part.Circle(App.Vector(0, 0, 0), App.Vector(0, 0, 1), 9.4), math.radians(38.902976), math.radians(231.097024)),  # 28
    Part.LineSegment(App.Vector(7.315179, 5.903233, 0), App.Vector(9.410895, 3.30626, 0)),  # 29
    Part.ArcOfCircle(Part.Circle(App.Vector(9.8, 3.620262, 0), App.Vector(0, 0, 1), 0.5), math.radians(-141.096992), math.radians(-38.903008)),  # 30
    Part.LineSegment(App.Vector(10.189105, 3.30626, 0), App.Vector(12.284821, 5.903233, 0)),  # 31
    Part.ArcOfCircle(Part.Circle(App.Vector(19.6, -0.000001, 0), App.Vector(0, 0, 1), 9.400001), math.radians(38.90298), math.radians(141.09702)),  # 32
    Part.LineSegment(App.Vector(26.915179, 5.903233, 0), App.Vector(29.010895, 3.30626, 0)),  # 33
    Part.ArcOfCircle(Part.Circle(App.Vector(29.4, 3.620262, 0), App.Vector(0, 0, 1), 0.5), math.radians(-141.096992), math.radians(-38.903008)),  # 34
    Part.LineSegment(App.Vector(29.789105, 3.30626, 0), App.Vector(31.884821, 5.903233, 0)),  # 35
    Part.ArcOfCircle(Part.Circle(App.Vector(39.2, -0.000001, 0), App.Vector(0, 0, 1), 9.400001), math.radians(38.90298), math.radians(141.09702)),  # 36
    Part.LineSegment(App.Vector(46.515179, 5.903233, 0), App.Vector(48.610895, 3.30626, 0)),  # 37
    Part.ArcOfCircle(Part.Circle(App.Vector(49, 3.620262, 0), App.Vector(0, 0, 1), 0.5), math.radians(-141.096992), math.radians(-38.903008)),  # 38
    Part.LineSegment(App.Vector(49.389105, 3.30626, 0), App.Vector(51.484821, 5.903233, 0)),  # 39
], False)
sketch3.addConstraint([
    Sketcher.Constraint("Tangent", 0, 1, 1, 1),
    Sketcher.Constraint("Tangent", 1, 2, 2, 1),
    Sketcher.Constraint("Tangent", 2, 2, 3, 1),
    Sketcher.Constraint("Tangent", 3, 2, 4, 2),
    Sketcher.Constraint("Tangent", 4, 1, 5, 1),
    Sketcher.Constraint("Tangent", 5, 2, 6, 1),
    Sketcher.Constraint("Tangent", 6, 2, 7, 1),
    Sketcher.Constraint("Tangent", 7, 2, 8, 2),
    Sketcher.Constraint("Tangent", 8, 1, 9, 1),
    Sketcher.Constraint("Tangent", 9, 2, 10, 1),
    Sketcher.Constraint("Tangent", 10, 2, 11, 1),
    Sketcher.Constraint("Tangent", 11, 2, 12, 2),
    Sketcher.Constraint("Tangent", 12, 1, 13, 1),
    Sketcher.Constraint("Tangent", 13, 2, 14, 1),
    Sketcher.Constraint("Tangent", 14, 2, 15, 1),
    Sketcher.Constraint("Tangent", 15, 2, 16, 2),
    Sketcher.Constraint("Tangent", 16, 1, 17, 1),
    Sketcher.Constraint("Tangent", 17, 2, 18, 1),
    Sketcher.Constraint("Tangent", 18, 2, 19, 1),
    Sketcher.Constraint("Tangent", 19, 2, 20, 2),
    Sketcher.Constraint("Tangent", 20, 1, 21, 1),
    Sketcher.Constraint("Tangent", 21, 2, 22, 1),
    Sketcher.Constraint("Tangent", 22, 2, 23, 1),
    Sketcher.Constraint("Tangent", 23, 2, 24, 2),
    Sketcher.Constraint("Tangent", 24, 1, 25, 1),
    Sketcher.Constraint("Tangent", 25, 2, 26, 1),
    Sketcher.Constraint("Tangent", 26, 2, 27, 1),
    Sketcher.Constraint("Tangent", 27, 2, 28, 2),
    Sketcher.Constraint("Tangent", 28, 1, 29, 1),
    Sketcher.Constraint("Tangent", 29, 2, 30, 1),
    Sketcher.Constraint("Tangent", 30, 2, 31, 1),
    Sketcher.Constraint("Tangent", 31, 2, 32, 2),
    Sketcher.Constraint("Tangent", 32, 1, 33, 1),
    Sketcher.Constraint("Tangent", 33, 2, 34, 1),
    Sketcher.Constraint("Tangent", 34, 2, 35, 1),
    Sketcher.Constraint("Tangent", 35, 2, 36, 2),
    Sketcher.Constraint("Tangent", 36, 1, 37, 1),
    Sketcher.Constraint("Tangent", 37, 2, 38, 1),
    Sketcher.Constraint("Tangent", 38, 2, 39, 1),
    Sketcher.Constraint("Tangent", 39, 2, 0, 2),
    Sketcher.Constraint("Coincident", 28, 3, -1, 1),
    Sketcher.Constraint("Equal", 0, 4),
    Sketcher.Constraint("Equal", 2, 6),
    Sketcher.Constraint("Equal", 4, 8),
    Sketcher.Constraint("Equal", 6, 10),
    Sketcher.Constraint("Equal", 8, 12),
    Sketcher.Constraint("Equal", 10, 14),
    Sketcher.Constraint("Equal", 12, 16),
    Sketcher.Constraint("Equal", 14, 18),
    Sketcher.Constraint("Equal", 16, 20),
    Sketcher.Constraint("Equal", 18, 22),
    Sketcher.Constraint("Equal", 20, 24),
    Sketcher.Constraint("Equal", 22, 26),
    Sketcher.Constraint("Equal", 24, 28),
    Sketcher.Constraint("Equal", 26, 30),
    Sketcher.Constraint("Equal", 28, 32),
    Sketcher.Constraint("Equal", 30, 34),
    Sketcher.Constraint("Equal", 32, 36),
    Sketcher.Constraint("Equal", 34, 38),
    Sketcher.Constraint("PointOnObject", 0, 3, -1),
    Sketcher.Constraint("PointOnObject", 20, 3, -2),
    Sketcher.Constraint("PointOnObject", 24, 3, -2),
    Sketcher.Constraint("PointOnObject", 32, 3, -1),
    Sketcher.Constraint("PointOnObject", 36, 3, -1),
    Sketcher.Constraint("Parallel", 1, 5),
    Sketcher.Constraint("Parallel", 3, 7),
    Sketcher.Constraint("Perpendicular", 5, 9),
    Sketcher.Constraint("Perpendicular", 7, 11),
    Sketcher.Constraint("Parallel", 9, 13),
    Sketcher.Constraint("Parallel", 11, 15),
    Sketcher.Constraint("Parallel", 13, 17),
    Sketcher.Constraint("Parallel", 15, 19),
    Sketcher.Constraint("Perpendicular", 17, 21),
    Sketcher.Constraint("Perpendicular", 19, 23),
    Sketcher.Constraint("Parallel", 21, 25),
    Sketcher.Constraint("Parallel", 23, 27),
    Sketcher.Constraint("Perpendicular", 25, 29),
    Sketcher.Constraint("Perpendicular", 27, 31),
    Sketcher.Constraint("Parallel", 29, 33),
    Sketcher.Constraint("Parallel", 31, 35),
    Sketcher.Constraint("Parallel", 33, 37),
    Sketcher.Constraint("Parallel", 35, 39),
    Sketcher.Constraint("Horizontal", 8, 3, 12, 3),
    Sketcher.Constraint("Horizontal", 10, 3, 14, 3),
    Sketcher.Constraint("Horizontal", 12, 3, 16, 3),
    Sketcher.Constraint("Horizontal", 14, 3, 18, 3),
    Sketcher.Constraint("Horizontal", 16, 3, 20, 3),
    Sketcher.Constraint("Horizontal", 6, 3, 22, 3),
    Sketcher.Constraint("Horizontal", 4, 3, 24, 3),
    Sketcher.Constraint("Horizontal", 2, 3, 26, 3),
    Sketcher.Constraint("Horizontal", 30, 3, 34, 3),
    Sketcher.Constraint("Horizontal", 34, 3, 38, 3),
    Sketcher.Constraint("Horizontal", 9, 2, 10, 2),
    Sketcher.Constraint("Vertical", 2, 3, 6, 3),
    Sketcher.Constraint("Equal", 7, 9),
    Sketcher.Constraint("Radius", 0, 9.4),
    Sketcher.Constraint("Radius", 2, 0.5),
    Sketcher.Constraint("DistanceX", -1, 1, 10, 3, 49.0),
    Sketcher.Constraint("DistanceX", 1, 2, 2, 3, 0.314002),
])
pad3 = body2.newObject("PartDesign::Pad", "Pad002")
pad3.Profile = sketch3
pad3.Length = 2
body3 = doc.addObject("PartDesign::Body", "Body002")
body3.AllowCompound = True

# Sketch on XZ plane
sketch4 = body3.newObject("Sketcher::SketchObject", "Sketch003")
sketch4.AttachmentSupport = (doc.getObject("XZ_Plane002"), [""])
sketch4.MapMode = "FlatFace"
sketch4.AttachmentOffset = App.Placement(App.Vector(0, 0, 4), App.Rotation())
sketch4.addGeometry([
    Part.Circle(App.Vector(29.4, -9.8, 0), App.Vector(0, 0, 1), 2),
    Part.Circle(App.Vector(29.4, -29.4, 0), App.Vector(0, 0, 1), 2),
], False)
sketch4.addConstraint([
    Sketcher.Constraint("Equal", 0, 1),
    Sketcher.Constraint("Vertical", 0, 3, 1, 3),
    Sketcher.Constraint("Diameter", 0, 4.0),
    Sketcher.Constraint("DistanceX", -1, 1, 0, 3, 29.4),
    Sketcher.Constraint("DistanceY", 0, 3, -1, 1, 9.8),
    Sketcher.Constraint("DistanceY", 1, 3, -1, 1, 29.4),
])
pad4 = body3.newObject("PartDesign::Pad", "Pad003")
pad4.Profile = sketch4
pad4.Length = 19.001
pad4.Reversed = True
doc.recompute()

body4 = doc.addObject("PartDesign::Body", "Body003")
body4.BaseFeature = body3
boolean = body.newObject("PartDesign::Boolean", "Boolean")
boolean.Type = "Cut"
boolean.addObjects([body4])
doc.recompute()

boolean2 = body2.newObject("PartDesign::Boolean", "Boolean001")
boolean2.Type = "Cut"
boolean2.addObjects([body3])

doc.recompute()
